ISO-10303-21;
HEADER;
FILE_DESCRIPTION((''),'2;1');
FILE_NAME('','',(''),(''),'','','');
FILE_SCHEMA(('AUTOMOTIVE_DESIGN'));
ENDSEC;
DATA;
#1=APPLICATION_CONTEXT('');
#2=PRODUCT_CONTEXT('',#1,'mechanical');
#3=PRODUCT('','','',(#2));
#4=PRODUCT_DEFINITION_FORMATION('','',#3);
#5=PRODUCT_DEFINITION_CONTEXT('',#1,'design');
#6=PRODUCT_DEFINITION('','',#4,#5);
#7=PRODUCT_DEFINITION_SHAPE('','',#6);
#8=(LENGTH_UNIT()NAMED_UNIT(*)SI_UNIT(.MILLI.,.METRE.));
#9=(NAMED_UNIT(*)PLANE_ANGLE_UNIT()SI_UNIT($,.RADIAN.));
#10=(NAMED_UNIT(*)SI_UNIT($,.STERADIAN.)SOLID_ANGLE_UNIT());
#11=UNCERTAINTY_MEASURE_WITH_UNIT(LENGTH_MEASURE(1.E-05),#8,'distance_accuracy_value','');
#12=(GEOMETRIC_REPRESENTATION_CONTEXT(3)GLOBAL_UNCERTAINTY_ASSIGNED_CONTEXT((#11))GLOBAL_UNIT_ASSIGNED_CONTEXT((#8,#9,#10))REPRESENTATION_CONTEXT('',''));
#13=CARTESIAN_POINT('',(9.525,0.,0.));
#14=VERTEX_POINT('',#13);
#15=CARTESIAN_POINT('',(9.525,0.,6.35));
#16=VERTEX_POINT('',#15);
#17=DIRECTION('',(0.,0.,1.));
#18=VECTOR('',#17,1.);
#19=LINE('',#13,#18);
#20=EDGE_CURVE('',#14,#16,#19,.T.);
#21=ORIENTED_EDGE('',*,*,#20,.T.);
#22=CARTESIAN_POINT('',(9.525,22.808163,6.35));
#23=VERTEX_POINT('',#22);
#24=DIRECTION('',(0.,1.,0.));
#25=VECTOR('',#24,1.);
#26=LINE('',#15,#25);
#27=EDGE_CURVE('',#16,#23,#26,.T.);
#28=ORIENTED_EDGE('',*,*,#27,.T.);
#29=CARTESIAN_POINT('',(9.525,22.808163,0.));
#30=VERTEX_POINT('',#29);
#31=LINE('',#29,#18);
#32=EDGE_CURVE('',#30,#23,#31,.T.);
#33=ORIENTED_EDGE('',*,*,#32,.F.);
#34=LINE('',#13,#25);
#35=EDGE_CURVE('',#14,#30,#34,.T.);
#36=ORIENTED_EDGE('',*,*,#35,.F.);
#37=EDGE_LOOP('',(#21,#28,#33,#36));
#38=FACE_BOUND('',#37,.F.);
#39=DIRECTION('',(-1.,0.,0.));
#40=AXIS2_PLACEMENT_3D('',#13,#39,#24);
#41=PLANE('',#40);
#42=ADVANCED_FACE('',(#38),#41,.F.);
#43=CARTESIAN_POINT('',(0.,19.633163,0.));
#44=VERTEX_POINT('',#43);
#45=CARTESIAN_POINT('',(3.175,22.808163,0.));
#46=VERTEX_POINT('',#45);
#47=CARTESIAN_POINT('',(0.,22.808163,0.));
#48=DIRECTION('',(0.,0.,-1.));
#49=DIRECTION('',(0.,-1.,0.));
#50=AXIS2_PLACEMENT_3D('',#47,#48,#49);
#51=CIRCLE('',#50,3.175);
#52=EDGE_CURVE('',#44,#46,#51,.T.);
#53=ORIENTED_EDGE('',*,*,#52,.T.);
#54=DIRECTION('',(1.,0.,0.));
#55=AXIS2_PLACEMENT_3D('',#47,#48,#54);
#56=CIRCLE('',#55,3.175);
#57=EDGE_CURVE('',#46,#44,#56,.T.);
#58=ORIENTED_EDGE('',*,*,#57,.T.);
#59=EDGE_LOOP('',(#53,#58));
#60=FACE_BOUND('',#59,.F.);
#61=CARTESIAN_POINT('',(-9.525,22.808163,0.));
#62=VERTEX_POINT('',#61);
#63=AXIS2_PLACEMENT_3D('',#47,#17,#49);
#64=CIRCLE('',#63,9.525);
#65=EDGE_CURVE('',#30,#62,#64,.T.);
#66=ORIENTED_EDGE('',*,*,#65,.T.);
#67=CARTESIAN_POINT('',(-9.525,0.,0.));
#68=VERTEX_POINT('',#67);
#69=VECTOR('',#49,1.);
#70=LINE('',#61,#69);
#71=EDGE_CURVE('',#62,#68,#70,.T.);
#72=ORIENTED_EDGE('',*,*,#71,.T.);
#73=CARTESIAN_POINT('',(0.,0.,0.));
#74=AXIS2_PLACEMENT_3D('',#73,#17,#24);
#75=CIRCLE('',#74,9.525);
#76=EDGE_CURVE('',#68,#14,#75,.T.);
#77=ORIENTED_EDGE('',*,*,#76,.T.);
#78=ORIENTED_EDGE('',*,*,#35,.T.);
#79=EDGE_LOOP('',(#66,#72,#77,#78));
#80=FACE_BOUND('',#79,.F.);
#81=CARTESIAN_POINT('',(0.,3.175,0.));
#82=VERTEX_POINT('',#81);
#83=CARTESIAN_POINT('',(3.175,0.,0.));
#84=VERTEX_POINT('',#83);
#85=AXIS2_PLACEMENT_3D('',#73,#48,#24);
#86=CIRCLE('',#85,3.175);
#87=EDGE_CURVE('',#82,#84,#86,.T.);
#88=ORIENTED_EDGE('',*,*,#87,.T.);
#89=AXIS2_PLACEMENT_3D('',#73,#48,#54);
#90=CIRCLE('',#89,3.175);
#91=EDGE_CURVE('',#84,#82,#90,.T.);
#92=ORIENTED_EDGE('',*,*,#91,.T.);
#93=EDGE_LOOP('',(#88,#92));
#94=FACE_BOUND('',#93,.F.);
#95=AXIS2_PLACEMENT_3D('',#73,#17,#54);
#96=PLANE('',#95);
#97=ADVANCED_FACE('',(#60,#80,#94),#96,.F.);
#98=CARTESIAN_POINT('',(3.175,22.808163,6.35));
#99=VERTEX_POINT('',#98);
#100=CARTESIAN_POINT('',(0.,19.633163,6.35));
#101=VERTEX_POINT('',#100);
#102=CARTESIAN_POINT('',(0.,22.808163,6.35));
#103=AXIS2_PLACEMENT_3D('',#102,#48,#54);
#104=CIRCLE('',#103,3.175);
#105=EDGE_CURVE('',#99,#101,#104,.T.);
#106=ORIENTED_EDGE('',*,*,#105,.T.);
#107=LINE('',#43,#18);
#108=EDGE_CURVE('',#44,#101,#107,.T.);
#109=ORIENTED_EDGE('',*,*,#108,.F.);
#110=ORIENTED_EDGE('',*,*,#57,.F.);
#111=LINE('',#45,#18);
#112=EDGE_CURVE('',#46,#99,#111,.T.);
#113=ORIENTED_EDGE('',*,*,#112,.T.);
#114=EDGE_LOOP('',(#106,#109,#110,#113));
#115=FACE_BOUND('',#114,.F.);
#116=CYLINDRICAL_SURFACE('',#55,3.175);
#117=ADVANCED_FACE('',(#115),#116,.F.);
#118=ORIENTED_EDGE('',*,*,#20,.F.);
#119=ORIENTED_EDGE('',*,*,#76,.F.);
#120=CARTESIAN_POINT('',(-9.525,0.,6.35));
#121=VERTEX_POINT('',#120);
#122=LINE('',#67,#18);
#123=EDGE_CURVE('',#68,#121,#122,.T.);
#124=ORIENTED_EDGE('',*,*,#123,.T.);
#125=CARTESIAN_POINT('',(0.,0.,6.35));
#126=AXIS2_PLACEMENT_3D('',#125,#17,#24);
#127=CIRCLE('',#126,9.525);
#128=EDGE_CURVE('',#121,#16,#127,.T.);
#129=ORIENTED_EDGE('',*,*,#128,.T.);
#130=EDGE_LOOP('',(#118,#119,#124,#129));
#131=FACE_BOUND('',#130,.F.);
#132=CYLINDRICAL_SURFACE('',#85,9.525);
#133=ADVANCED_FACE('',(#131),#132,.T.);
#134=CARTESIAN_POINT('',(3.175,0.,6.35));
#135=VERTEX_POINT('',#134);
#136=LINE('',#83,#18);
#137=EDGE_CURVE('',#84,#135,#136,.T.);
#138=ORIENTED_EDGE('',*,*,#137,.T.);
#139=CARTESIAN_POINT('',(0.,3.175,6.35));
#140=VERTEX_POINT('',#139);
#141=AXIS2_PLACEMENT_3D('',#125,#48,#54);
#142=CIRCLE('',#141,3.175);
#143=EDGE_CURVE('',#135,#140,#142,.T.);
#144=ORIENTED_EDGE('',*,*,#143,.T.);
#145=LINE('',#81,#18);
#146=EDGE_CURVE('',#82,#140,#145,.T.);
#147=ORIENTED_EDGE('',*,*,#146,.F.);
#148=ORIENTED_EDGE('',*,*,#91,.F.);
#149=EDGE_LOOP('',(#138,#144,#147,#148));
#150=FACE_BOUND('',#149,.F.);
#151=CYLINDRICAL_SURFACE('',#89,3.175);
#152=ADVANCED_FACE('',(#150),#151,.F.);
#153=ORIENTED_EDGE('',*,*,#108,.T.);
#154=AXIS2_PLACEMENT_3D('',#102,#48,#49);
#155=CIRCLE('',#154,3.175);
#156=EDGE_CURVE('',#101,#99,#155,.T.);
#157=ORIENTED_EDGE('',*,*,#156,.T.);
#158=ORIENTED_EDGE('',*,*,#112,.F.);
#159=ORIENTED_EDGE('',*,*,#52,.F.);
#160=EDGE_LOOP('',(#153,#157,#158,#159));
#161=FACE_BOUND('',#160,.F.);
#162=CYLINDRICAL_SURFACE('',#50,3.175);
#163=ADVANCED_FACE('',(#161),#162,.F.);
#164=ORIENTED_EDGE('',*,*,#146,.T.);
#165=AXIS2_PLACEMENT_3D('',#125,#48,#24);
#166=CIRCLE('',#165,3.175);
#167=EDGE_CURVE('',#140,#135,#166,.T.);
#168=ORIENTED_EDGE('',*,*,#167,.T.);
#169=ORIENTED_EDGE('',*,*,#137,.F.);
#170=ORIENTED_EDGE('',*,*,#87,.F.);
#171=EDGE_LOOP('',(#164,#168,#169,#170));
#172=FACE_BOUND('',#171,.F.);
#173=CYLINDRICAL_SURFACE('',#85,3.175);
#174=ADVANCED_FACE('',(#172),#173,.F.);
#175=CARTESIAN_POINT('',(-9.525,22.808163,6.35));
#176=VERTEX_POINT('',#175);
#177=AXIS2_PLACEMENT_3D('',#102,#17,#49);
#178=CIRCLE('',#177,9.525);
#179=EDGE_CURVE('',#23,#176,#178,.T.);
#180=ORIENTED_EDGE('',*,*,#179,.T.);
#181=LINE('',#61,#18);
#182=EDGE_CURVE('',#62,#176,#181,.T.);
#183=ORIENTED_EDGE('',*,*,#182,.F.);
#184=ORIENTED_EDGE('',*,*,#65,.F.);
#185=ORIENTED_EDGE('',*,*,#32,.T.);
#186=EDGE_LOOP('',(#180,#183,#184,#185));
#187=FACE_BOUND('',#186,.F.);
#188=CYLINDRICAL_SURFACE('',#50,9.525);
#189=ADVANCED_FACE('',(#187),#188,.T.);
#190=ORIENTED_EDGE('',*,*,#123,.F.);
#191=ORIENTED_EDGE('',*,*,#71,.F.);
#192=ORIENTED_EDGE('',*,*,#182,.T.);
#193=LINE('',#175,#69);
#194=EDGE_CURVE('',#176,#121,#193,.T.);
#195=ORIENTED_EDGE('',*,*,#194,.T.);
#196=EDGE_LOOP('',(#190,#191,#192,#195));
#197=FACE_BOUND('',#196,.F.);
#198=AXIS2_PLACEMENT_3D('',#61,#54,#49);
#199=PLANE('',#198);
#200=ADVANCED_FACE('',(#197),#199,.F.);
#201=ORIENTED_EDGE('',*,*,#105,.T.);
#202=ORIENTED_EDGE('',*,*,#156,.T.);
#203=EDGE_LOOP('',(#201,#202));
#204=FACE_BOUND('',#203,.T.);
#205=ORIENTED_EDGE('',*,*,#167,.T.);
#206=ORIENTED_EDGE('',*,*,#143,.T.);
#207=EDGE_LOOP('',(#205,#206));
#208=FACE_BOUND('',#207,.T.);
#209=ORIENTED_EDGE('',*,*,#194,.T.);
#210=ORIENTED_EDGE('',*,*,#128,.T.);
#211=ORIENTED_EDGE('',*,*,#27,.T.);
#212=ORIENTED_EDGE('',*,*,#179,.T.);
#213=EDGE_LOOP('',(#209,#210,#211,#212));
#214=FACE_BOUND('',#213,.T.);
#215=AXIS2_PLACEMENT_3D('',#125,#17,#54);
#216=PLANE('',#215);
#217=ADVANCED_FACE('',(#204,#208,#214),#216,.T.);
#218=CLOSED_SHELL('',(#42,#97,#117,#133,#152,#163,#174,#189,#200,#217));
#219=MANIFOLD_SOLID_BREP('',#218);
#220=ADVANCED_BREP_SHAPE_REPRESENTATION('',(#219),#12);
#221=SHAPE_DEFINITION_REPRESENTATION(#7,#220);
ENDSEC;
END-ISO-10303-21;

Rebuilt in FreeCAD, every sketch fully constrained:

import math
import FreeCAD as App
import Part
import Sketcher
Q = App.Units.Quantity

doc = App.newDocument("Part")
params = doc.addObject("Spreadsheet::Sheet", "Params")
for row, (alias, value) in enumerate([
    ("sketch1_radius", "0.375 in"),
    ("sketch1_radius2", "0.125 in"),
    ("pad1_length", "0.25 in"),
], start=1):
    params.set(f"A{row}", alias)
    params.set(f"B{row}", "=" + value)
    params.setAlias(f"B{row}", alias)

body = doc.addObject("PartDesign::Body", "Body")

sketch1 = body.newObject("Sketcher::SketchObject", "Sketch")
sketch1.AttachmentSupport = (doc.getObject("XY_Plane"), [""])
sketch1.MapMode = "FlatFace"
sketch1.addGeometry([
    Part.ArcOfCircle(Part.Circle(App.Vector(0, 0, 0), App.Vector(0, 0, 1), 9.5), math.radians(180), math.radians(360)),
    Part.LineSegment(App.Vector(9.5, 0, 0), App.Vector(9.5, 22.8, 0)),
    Part.ArcOfCircle(Part.Circle(App.Vector(0, 22.8, 0), App.Vector(0, 0, 1), 9.5), math.radians(0), math.radians(180)),
    Part.LineSegment(App.Vector(-9.5, 22.8, 0), App.Vector(-9.5, 0, 0)),
    Part.ArcOfCircle(Part.Circle(App.Vector(0, 0, 0), App.Vector(0, 0, 1), 3.2), math.radians(0), math.radians(90)),
    Part.ArcOfCircle(Part.Circle(App.Vector(0, 0, 0), App.Vector(0, 0, 1), 3.2), math.radians(90), math.radians(360)),
    Part.ArcOfCircle(Part.Circle(App.Vector(0, 22.8, 0), App.Vector(0, 0, 1), 3.2), math.radians(0), math.radians(270)),
    Part.ArcOfCircle(Part.Circle(App.Vector(0, 22.8, 0), App.Vector(0, 0, 1), 3.2), math.radians(-90), math.radians(0)),
], False)
sketch1.addConstraint([
    Sketcher.Constraint("Tangent", 0, 2, 1, 1),
    Sketcher.Constraint("Tangent", 1, 2, 2, 1),
    Sketcher.Constraint("Tangent", 2, 2, 3, 1),
    Sketcher.Constraint("Tangent", 3, 2, 0, 1),
    Sketcher.Constraint("Tangent", 4, 1, 5, 2),
    Sketcher.Constraint("Coincident", 5, 1, 4, 2),
    Sketcher.Constraint("Tangent", 6, 1, 7, 2),
    Sketcher.Constraint("Coincident", 7, 1, 6, 2),
    Sketcher.Constraint("Vertical", 1),
    Sketcher.Constraint("Vertical", 3),
    Sketcher.Constraint("Coincident", 0, 3, -1, 1),
    Sketcher.Constraint("Coincident", 4, 3, -1, 1),
    Sketcher.Constraint("Coincident", 6, 3, 2, 3),
    Sketcher.Constraint("Equal", 5, 6),
    Sketcher.Constraint("PointOnObject", 4, 1, -1),
    Sketcher.Constraint("PointOnObject", 5, 1, -2),
    Sketcher.Constraint("PointOnObject", 7, 1, -2),
    Sketcher.Constraint("Horizontal", 2, 2, 6, 1),
    Sketcher.Constraint("Radius", 0, Q("0.375 in")),
    Sketcher.Constraint("Radius", 4, Q("0.125 in")),
    Sketcher.Constraint("DistanceY", 1, 1, 1, 2, 22.808163),
])
sketch1.setExpression("Constraints[18]", "Params.sketch1_radius")
sketch1.setExpression("Constraints[19]", "Params.sketch1_radius2")
pad1 = body.newObject("PartDesign::Pad", "Pad")
pad1.Profile = sketch1
pad1.setExpression("Length", "Params.pad1_length")

doc.recompute()
